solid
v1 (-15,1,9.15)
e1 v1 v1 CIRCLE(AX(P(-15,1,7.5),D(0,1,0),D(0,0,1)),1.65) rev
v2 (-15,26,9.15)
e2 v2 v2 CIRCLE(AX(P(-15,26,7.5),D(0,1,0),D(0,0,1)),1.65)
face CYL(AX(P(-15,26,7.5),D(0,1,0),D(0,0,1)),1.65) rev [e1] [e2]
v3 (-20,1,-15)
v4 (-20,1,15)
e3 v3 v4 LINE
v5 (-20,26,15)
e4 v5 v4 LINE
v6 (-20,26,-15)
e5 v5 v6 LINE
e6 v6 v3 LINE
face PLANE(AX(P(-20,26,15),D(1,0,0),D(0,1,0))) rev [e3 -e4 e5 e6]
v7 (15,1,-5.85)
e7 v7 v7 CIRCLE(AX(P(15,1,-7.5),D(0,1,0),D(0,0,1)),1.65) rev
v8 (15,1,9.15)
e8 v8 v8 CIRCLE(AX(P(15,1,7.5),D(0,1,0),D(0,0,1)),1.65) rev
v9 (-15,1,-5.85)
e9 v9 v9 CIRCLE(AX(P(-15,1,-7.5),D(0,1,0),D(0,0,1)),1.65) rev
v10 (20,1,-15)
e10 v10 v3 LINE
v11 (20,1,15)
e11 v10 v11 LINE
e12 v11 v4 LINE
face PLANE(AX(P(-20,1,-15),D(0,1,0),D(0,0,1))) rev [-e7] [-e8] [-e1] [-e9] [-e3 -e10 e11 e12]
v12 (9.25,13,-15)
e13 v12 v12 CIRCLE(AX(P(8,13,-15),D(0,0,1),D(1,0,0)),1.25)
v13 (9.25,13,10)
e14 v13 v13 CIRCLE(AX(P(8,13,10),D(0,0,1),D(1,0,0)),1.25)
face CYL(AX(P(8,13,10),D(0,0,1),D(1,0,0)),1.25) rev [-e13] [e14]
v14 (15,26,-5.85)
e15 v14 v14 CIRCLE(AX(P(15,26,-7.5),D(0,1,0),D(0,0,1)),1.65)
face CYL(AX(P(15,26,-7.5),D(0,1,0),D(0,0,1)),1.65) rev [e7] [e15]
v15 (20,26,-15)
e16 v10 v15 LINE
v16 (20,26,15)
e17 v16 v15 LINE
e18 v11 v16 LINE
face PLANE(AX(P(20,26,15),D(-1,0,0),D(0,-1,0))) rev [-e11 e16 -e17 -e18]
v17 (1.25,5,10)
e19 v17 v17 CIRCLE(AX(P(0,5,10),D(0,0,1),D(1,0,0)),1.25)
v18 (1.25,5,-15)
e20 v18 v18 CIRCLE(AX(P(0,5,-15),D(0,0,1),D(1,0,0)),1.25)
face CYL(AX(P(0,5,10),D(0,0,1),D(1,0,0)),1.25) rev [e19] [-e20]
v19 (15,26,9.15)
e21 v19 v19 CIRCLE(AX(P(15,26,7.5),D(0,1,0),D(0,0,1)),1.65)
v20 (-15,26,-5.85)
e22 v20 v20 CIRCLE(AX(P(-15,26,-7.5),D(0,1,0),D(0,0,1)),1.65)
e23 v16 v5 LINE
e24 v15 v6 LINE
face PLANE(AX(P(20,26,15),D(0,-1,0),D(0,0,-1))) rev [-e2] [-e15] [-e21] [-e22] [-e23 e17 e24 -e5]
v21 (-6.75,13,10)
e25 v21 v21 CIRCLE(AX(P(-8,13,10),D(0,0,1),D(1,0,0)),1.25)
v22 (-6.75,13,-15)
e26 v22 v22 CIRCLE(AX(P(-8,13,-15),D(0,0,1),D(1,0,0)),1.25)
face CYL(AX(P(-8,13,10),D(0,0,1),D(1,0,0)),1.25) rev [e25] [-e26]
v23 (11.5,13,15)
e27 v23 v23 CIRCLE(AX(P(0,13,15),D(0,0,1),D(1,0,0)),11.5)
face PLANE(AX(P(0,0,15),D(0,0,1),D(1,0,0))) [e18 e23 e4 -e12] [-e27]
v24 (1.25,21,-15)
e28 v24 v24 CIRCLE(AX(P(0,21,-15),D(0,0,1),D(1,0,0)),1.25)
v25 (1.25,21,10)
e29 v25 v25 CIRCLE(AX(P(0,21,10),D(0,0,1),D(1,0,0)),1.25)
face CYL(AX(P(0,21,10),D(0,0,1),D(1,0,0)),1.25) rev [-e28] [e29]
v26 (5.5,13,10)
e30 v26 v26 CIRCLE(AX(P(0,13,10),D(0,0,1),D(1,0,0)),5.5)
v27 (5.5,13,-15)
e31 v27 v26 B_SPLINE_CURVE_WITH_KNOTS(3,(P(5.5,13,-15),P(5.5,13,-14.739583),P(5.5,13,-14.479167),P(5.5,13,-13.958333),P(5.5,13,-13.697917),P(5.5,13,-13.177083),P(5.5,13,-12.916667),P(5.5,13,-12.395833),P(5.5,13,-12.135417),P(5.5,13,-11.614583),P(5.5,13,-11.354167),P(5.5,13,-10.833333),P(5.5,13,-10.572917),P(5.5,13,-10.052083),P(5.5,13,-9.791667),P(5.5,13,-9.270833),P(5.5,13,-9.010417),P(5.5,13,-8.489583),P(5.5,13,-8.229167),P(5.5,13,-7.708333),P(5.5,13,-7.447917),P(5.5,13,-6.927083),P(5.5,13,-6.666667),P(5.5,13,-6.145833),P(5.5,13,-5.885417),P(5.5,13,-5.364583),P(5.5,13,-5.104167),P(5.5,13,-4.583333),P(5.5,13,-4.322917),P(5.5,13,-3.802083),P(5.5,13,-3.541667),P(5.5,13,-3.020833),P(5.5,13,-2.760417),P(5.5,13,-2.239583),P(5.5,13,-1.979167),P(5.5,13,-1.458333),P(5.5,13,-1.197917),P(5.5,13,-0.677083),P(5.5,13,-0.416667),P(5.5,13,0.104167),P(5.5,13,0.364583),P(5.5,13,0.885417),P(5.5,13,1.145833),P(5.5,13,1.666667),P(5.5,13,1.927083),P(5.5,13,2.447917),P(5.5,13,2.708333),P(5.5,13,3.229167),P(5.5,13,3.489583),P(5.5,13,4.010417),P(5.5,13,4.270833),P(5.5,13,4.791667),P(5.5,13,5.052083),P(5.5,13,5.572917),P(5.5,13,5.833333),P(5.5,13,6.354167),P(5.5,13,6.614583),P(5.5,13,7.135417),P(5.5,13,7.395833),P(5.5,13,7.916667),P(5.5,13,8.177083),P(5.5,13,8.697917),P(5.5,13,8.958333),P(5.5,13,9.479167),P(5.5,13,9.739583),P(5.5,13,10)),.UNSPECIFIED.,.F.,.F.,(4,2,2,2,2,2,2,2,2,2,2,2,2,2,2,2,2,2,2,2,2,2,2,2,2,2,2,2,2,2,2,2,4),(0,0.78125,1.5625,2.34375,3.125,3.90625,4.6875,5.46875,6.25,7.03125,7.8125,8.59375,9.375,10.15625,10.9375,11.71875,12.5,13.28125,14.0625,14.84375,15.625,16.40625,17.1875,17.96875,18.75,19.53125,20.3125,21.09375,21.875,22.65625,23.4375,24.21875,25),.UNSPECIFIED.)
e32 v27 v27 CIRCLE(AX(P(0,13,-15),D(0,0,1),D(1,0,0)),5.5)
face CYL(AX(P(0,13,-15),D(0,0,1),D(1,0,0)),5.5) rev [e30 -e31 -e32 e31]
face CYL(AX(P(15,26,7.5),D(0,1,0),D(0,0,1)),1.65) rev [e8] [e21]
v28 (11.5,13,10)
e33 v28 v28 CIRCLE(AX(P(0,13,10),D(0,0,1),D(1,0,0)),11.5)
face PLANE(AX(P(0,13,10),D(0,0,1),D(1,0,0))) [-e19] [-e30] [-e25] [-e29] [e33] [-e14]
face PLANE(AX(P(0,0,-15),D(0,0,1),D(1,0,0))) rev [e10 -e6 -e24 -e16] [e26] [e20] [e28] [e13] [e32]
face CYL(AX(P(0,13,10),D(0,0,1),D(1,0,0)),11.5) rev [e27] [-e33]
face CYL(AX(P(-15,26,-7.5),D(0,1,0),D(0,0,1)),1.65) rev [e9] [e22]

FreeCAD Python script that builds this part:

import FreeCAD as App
import Part
import Sketcher
from FreeCAD import Vector
Q = App.Units.Quantity


def add_polygon(sketch, points):
    """Adds a closed chain of lines whose ends are joined by coincident constraints."""
    first, n = sketch.GeometryCount, len(points)
    for a, b in zip(points, points[1:] + points[:1]):
        sketch.addGeometry(Part.LineSegment(App.Vector(*a, 0), App.Vector(*b, 0)), False)
    for i in range(n):
        sketch.addConstraint(Sketcher.Constraint("Coincident", first + i, 2, first + (i + 1) % n, 1))

doc = App.newDocument("Part")
params = doc.addObject("Spreadsheet::Sheet", "Params")
for row, (alias, value) in enumerate([
    ("sketch1_width", "40 mm"),
    ("sketch1_height", "26 mm"),
    ("pad1_length", "30 mm"),
    ("sketch2_diameter", "23 mm"),
    ("pocket1_length", "5 mm"),
    ("sketch3_diameter", "11 mm"),
    ("sketch4_diameter", "3.3 mm"),
    ("hole_diameter", "3.3 mm"),
    ("sketch5_diameter", "2.5 mm"),
    ("hole2_diameter", "2.5 mm"),
    ("sketch6_width", "40 mm"),
    ("sketch6_height", "1 mm"),
], start=1):
    params.set(f"A{row}", alias)
    params.set(f"B{row}", "=" + value)
    params.setAlias(f"B{row}", alias)

body = doc.addObject("PartDesign::Body", "Body")

sketch1 = body.newObject("Sketcher::SketchObject", "Sketch")
sketch1.AttachmentSupport = (doc.getObject("XY_Plane"), [""])
sketch1.MapMode = "FlatFace"
add_polygon(sketch1, [(-20, 26), (-20, 0), (20, 0), (20, 26)])
sketch1.addConstraint([
    Sketcher.Constraint("Vertical", 0),
    Sketcher.Constraint("Horizontal", 1),
    Sketcher.Constraint("Vertical", 2),
    Sketcher.Constraint("Horizontal", 3),
    Sketcher.Constraint("Symmetric", 0, 2, 1, 2, -1, 1),
    Sketcher.Constraint("DistanceX", 1, 1, 1, 2, Q("40 mm")),
    Sketcher.Constraint("DistanceY", 0, 2, 0, 1, Q("26 mm")),
])
sketch1.setExpression("Constraints[9]", "Params.sketch1_width")
sketch1.setExpression("Constraints[10]", "Params.sketch1_height")
pad1 = body.newObject("PartDesign::Pad", "Pad")
pad1.Profile = sketch1
pad1.setExpression("Length", "Params.pad1_length")
pad1.Midplane = True

sketch2 = body.newObject("Sketcher::SketchObject", "Sketch001")
sketch2.AttachmentSupport = (doc.getObject("XY_Plane"), [""])
sketch2.MapMode = "FlatFace"
sketch2.AttachmentOffset = App.Placement(Vector(0, 0, 15), App.Rotation())
sketch2.addGeometry(Part.Circle(Vector(0, 13, 0), Vector(0, 0, 1), 12), False)
sketch2.addConstraint([
    Sketcher.Constraint("PointOnObject", 0, 3, -2),
    Sketcher.Constraint("Diameter", 0, Q("23 mm")),
    Sketcher.Constraint("DistanceY", -1, 1, 0, 3, Q("13 mm")),
])
sketch2.setExpression("Constraints[1]", "Params.sketch2_diameter")
pocket1 = body.newObject("PartDesign::Pocket", "Pocket")
pocket1.Profile = sketch2
pocket1.setExpression("Length", "Params.pocket1_length")

sketch3 = body.newObject("Sketcher::SketchObject", "Sketch002")
sketch3.AttachmentSupport = (doc.getObject("XY_Plane"), [""])
sketch3.MapMode = "FlatFace"
sketch3.AttachmentOffset = App.Placement(Vector(0, 0, 10), App.Rotation())
sketch3.addGeometry(Part.Circle(Vector(0, 13, 0), Vector(0, 0, 1), 6), False)
sketch3.addConstraint([
    Sketcher.Constraint("PointOnObject", 0, 3, -2),
    Sketcher.Constraint("Diameter", 0, Q("11 mm")),
    Sketcher.Constraint("DistanceY", -1, 1, 0, 3, Q("13 mm")),
])
sketch3.setExpression("Constraints[1]", "Params.sketch3_diameter")
pocket2 = body.newObject("PartDesign::Pocket", "Pocket001")
pocket2.Profile = sketch3
pocket2.Type = "ThroughAll"

sketch4 = body.newObject("Sketcher::SketchObject", "Sketch003")
sketch4.AttachmentSupport = (doc.getObject("XZ_Plane"), [""])
sketch4.MapMode = "FlatFace"
sketch4.AttachmentOffset = App.Placement(Vector(0, 0, -26), App.Rotation())
sketch4.addGeometry([
    Part.Circle(Vector(-15, -7.5, 0), Vector(0, 0, 1), 1.6),
    Part.Circle(Vector(15, -7.5, 0), Vector(0, 0, 1), 1.6),
    Part.Circle(Vector(15, 7.5, 0), Vector(0, 0, 1), 1.6),
    Part.Circle(Vector(-15, 7.5, 0), Vector(0, 0, 1), 1.6),
], False)
sketch4.addConstraint([
    Sketcher.Constraint("Equal", 0, 1),
    Sketcher.Constraint("Equal", 1, 2),
    Sketcher.Constraint("Equal", 2, 3),
    Sketcher.Constraint("Symmetric", 0, 3, 2, 3, -1, 1),
    Sketcher.Constraint("Symmetric", 1, 3, 3, 3, -1, 1),
    Sketcher.Constraint("Symmetric", 0, 3, 1, 3, -2),
    Sketcher.Constraint("Diameter", 0, Q("3.3 mm")),
    Sketcher.Constraint("DistanceX", 0, 3, -1, 1, Q("15 mm")),
    Sketcher.Constraint("DistanceY", 1, 3, 2, 3, Q("15 mm")),
])
sketch4.setExpression("Constraints[6]", "Params.sketch4_diameter")
doc.recompute()
hole = body.newObject("PartDesign::Hole", "Hole")
hole.Profile = sketch4
hole.ThreadType = "None"
hole.setExpression("Diameter", "Params.hole_diameter")
hole.DepthType = "ThroughAll"
hole.Reversed = True

sketch5 = body.newObject("Sketcher::SketchObject", "Sketch004")
sketch5.AttachmentSupport = (doc.getObject("XY_Plane"), [""])
sketch5.MapMode = "FlatFace"
sketch5.AttachmentOffset = App.Placement(Vector(0, 0, 10), App.Rotation())
sketch5.addGeometry([
    Part.Circle(Vector(0, 13, 0), Vector(0, 0, 1), 1.2),
    Part.Circle(Vector(0, 21, 0), Vector(0, 0, 1), 1.2),
    Part.Circle(Vector(0, 5, 0), Vector(0, 0, 1), 1.2),
    Part.Circle(Vector(-8, 13, 0), Vector(0, 0, 1), 1.2),
    Part.Circle(Vector(8, 13, 0), Vector(0, 0, 1), 1.2),
], False)
sketch5.addConstraint([
    Sketcher.Constraint("Equal", 0, 1),
    Sketcher.Constraint("Equal", 1, 2),
    Sketcher.Constraint("Equal", 2, 3),
    Sketcher.Constraint("Equal", 3, 4),
    Sketcher.Constraint("Symmetric", 3, 3, 4, 3, -2),
    Sketcher.Constraint("PointOnObject", 0, 3, -2),
    Sketcher.Constraint("PointOnObject", 1, 3, -2),
    Sketcher.Constraint("PointOnObject", 2, 3, -2),
    Sketcher.Constraint("Horizontal", 0, 3, 3, 3),
    Sketcher.Constraint("Diameter", 0, Q("2.5 mm")),
    Sketcher.Constraint("DistanceY", -1, 1, 0, 3, Q("13 mm")),
    Sketcher.Constraint("DistanceY", -1, 1, 1, 3, Q("21 mm")),
    Sketcher.Constraint("DistanceY", -1, 1, 2, 3, Q("5 mm")),
    Sketcher.Constraint("DistanceX", 3, 3, -1, 1, Q("8 mm")),
])
sketch5.setExpression("Constraints[9]", "Params.sketch5_diameter")
doc.recompute()
hole2 = body.newObject("PartDesign::Hole", "Hole001")
hole2.Profile = sketch5
hole2.ThreadType = "None"
hole2.setExpression("Diameter", "Params.hole2_diameter")
hole2.DepthType = "ThroughAll"

sketch6 = body.newObject("Sketcher::SketchObject", "Sketch005")
sketch6.AttachmentSupport = (doc.getObject("XY_Plane"), [""])
sketch6.MapMode = "FlatFace"
sketch6.AttachmentOffset = App.Placement(Vector(0, 0, 15), App.Rotation())
add_polygon(sketch6, [(-20, 1), (-20, 0), (20, 0), (20, 1)])
sketch6.addConstraint([
    Sketcher.Constraint("Vertical", 0),
    Sketcher.Constraint("Horizontal", 1),
    Sketcher.Constraint("Vertical", 2),
    Sketcher.Constraint("Horizontal", 3),
    Sketcher.Constraint("Symmetric", 0, 2, 1, 2, -1, 1),
    Sketcher.Constraint("DistanceX", 1, 1, 1, 2, Q("40 mm")),
    Sketcher.Constraint("DistanceY", 0, 2, 0, 1, Q("1 mm")),
])
sketch6.setExpression("Constraints[9]", "Params.sketch6_width")
sketch6.setExpression("Constraints[10]", "Params.sketch6_height")
pocket3 = body.newObject("PartDesign::Pocket", "Pocket002")
pocket3.Profile = sketch6
pocket3.Type = "ThroughAll"

doc.recompute()
